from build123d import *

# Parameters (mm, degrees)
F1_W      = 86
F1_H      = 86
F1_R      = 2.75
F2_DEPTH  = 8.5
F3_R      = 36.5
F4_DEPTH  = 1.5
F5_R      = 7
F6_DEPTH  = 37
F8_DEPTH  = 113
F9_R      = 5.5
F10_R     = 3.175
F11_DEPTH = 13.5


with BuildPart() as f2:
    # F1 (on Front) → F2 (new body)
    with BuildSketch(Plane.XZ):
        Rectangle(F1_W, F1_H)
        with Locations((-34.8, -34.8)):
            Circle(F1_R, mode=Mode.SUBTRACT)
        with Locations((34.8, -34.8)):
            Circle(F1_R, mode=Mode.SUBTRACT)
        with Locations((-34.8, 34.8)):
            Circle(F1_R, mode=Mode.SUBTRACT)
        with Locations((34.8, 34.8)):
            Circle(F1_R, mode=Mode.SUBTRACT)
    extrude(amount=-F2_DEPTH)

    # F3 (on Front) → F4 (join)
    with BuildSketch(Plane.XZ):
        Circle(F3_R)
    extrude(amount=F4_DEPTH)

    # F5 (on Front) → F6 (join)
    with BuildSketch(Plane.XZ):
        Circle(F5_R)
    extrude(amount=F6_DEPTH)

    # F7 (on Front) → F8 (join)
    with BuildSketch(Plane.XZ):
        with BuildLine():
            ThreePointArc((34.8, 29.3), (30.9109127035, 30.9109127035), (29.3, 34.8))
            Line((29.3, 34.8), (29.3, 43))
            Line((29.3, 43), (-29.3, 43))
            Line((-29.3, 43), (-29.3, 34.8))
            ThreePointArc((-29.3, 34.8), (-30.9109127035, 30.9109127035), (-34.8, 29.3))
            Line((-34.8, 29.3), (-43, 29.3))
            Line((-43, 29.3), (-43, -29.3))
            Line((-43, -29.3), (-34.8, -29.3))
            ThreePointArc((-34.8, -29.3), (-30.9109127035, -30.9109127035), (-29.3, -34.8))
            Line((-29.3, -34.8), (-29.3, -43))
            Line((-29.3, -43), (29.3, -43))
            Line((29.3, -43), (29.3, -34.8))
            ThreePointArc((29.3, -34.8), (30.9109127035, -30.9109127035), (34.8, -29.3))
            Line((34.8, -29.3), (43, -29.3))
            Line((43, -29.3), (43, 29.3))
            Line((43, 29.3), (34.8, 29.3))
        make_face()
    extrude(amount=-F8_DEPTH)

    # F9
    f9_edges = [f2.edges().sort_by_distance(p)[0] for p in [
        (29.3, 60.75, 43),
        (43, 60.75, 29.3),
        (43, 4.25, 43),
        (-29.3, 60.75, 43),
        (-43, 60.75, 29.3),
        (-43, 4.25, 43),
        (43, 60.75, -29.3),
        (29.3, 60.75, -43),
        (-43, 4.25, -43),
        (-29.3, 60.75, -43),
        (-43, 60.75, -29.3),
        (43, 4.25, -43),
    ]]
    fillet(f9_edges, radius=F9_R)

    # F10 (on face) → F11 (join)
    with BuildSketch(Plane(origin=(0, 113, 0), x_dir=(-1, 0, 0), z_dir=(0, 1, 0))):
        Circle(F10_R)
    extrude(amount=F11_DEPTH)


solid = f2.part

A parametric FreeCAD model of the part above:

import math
import FreeCAD as App
import Part
import Sketcher

V = App.Vector


def edges_at(feature, points):
    """Names of the edges that pass closest to the given points."""
    edges = feature.Shape.Edges
    near = lambda p: min(range(len(edges)), key=lambda i: edges[i].distToShape(Part.Vertex(*p))[0])
    return sorted({f"Edge{near(p) + 1}" for p in points})


def add_polygon(sketch, points):
    """Adds a closed chain of lines whose ends are joined by coincident constraints."""
    first, n = sketch.GeometryCount, len(points)
    for a, b in zip(points, points[1:] + points[:1]):
        sketch.addGeometry(Part.LineSegment(App.Vector(*a, 0), App.Vector(*b, 0)), False)
    for i in range(n):
        sketch.addConstraint(Sketcher.Constraint("Coincident", first + i, 2, first + (i + 1) % n, 1))

doc = App.newDocument("Part")
body = doc.addObject("PartDesign::Body", "Body")

sketch1 = doc.addObject("Sketcher::SketchObject", "Sketch")
body.addObject(sketch1)
sketch1.AttachmentSupport = (doc.XZ_Plane, [""])
sketch1.MapMode = "FlatFace"
add_polygon(sketch1, [(-43, 43), (-43, -43), (43, -43), (43, 43)])
sketch1.addGeometry(Part.Circle(V(-34.8, -34.8, 0), V(0, 0, 1), 2.75), False)
sketch1.addGeometry(Part.Circle(V(34.8, -34.8, 0), V(0, 0, 1), 2.75), False)
sketch1.addGeometry(Part.Circle(V(-34.8, 34.8, 0), V(0, 0, 1), 2.75), False)
sketch1.addGeometry(Part.Circle(V(34.8, 34.8, 0), V(0, 0, 1), 2.75), False)
sketch1.addConstraint([
    Sketcher.Constraint("Vertical", 0),
    Sketcher.Constraint("Horizontal", 1),
    Sketcher.Constraint("Vertical", 2),
    Sketcher.Constraint("Horizontal", 3),
    Sketcher.Constraint("Equal", 4, 5),
    Sketcher.Constraint("Equal", 5, 6),
    Sketcher.Constraint("Equal", 6, 7),
    Sketcher.Constraint("Symmetric", 5, 3, 6, 3, -1, 1),
    Sketcher.Constraint("Symmetric", 4, 3, 7, 3, -1, 1),
    Sketcher.Constraint("Symmetric", 0, 2, 2, 2, -1, 1),
    Sketcher.Constraint("Symmetric", 4, 3, 5, 3, -2),
    Sketcher.Constraint("Equal", 3, 0),
    Sketcher.Constraint("Diameter", 4, 5.5),
    Sketcher.Constraint("DistanceX", 1, 1, 1, 2, 86.0),
    Sketcher.Constraint("DistanceX", 4, 3, -1, 1, 34.8),
    Sketcher.Constraint("DistanceY", 4, 3, -1, 1, 34.8),
])
pad1 = doc.addObject("PartDesign::Pad", "Pad")
body.addObject(pad1)
pad1.Profile = sketch1
pad1.Length = 8.5
pad1.Reversed = True

sketch2 = doc.addObject("Sketcher::SketchObject", "Sketch001")
body.addObject(sketch2)
sketch2.AttachmentSupport = (doc.XZ_Plane, [""])
sketch2.MapMode = "FlatFace"
sketch2.addGeometry(Part.Circle(V(0, 0, 0), V(0, 0, 1), 36.5), False)
sketch2.addConstraint([
    Sketcher.Constraint("Coincident", 0, 3, -1, 1),
    Sketcher.Constraint("Diameter", 0, 73.0),
])
pad2 = doc.addObject("PartDesign::Pad", "Pad001")
body.addObject(pad2)
pad2.Profile = sketch2
pad2.Length = 1.5

sketch3 = doc.addObject("Sketcher::SketchObject", "Sketch002")
body.addObject(sketch3)
sketch3.AttachmentSupport = (doc.XZ_Plane, [""])
sketch3.MapMode = "FlatFace"
sketch3.addGeometry(Part.Circle(V(0, 0, 0), V(0, 0, 1), 7), False)
sketch3.addConstraint([
    Sketcher.Constraint("Coincident", 0, 3, -1, 1),
    Sketcher.Constraint("Diameter", 0, 14.0),
])
pad3 = doc.addObject("PartDesign::Pad", "Pad002")
body.addObject(pad3)
pad3.Profile = sketch3
pad3.Length = 37

sketch4 = doc.addObject("Sketcher::SketchObject", "Sketch003")
body.addObject(sketch4)
sketch4.AttachmentSupport = (doc.XZ_Plane, [""])
sketch4.MapMode = "FlatFace"
sketch4.addGeometry([
    Part.ArcOfCircle(Part.Circle(V(34.8, 34.8, 0), V(0, 0, 1), 5.5), math.radians(180), math.radians(270)),
    Part.LineSegment(V(29.3, 34.8, 0), V(29.3, 43, 0)),
    Part.LineSegment(V(29.3, 43, 0), V(-29.3, 43, 0)),
    Part.LineSegment(V(-29.3, 43, 0), V(-29.3, 34.8, 0)),
    Part.ArcOfCircle(Part.Circle(V(-34.8, 34.8, 0), V(0, 0, 1), 5.5), math.radians(-90), math.radians(0)),
    Part.LineSegment(V(-34.8, 29.3, 0), V(-43, 29.3, 0)),
    Part.LineSegment(V(-43, 29.3, 0), V(-43, -29.3, 0)),
    Part.LineSegment(V(-43, -29.3, 0), V(-34.8, -29.3, 0)),
    Part.ArcOfCircle(Part.Circle(V(-34.8, -34.8, 0), V(0, 0, 1), 5.5), math.radians(0), math.radians(90)),
    Part.LineSegment(V(-29.3, -34.8, 0), V(-29.3, -43, 0)),
    Part.LineSegment(V(-29.3, -43, 0), V(29.3, -43, 0)),
    Part.LineSegment(V(29.3, -43, 0), V(29.3, -34.8, 0)),
    Part.ArcOfCircle(Part.Circle(V(34.8, -34.8, 0), V(0, 0, 1), 5.5), math.radians(90), math.radians(180)),
    Part.LineSegment(V(34.8, -29.3, 0), V(43, -29.3, 0)),
    Part.LineSegment(V(43, -29.3, 0), V(43, 29.3, 0)),
    Part.LineSegment(V(43, 29.3, 0), V(34.8, 29.3, 0)),
], False)
sketch4.addConstraint([
    Sketcher.Constraint("Tangent", 0, 1, 1, 1),
    Sketcher.Constraint("Coincident", 1, 2, 2, 1),
    Sketcher.Constraint("Coincident", 2, 2, 3, 1),
    Sketcher.Constraint("Tangent", 3, 2, 4, 2),
    Sketcher.Constraint("Tangent", 4, 1, 5, 1),
    Sketcher.Constraint("Coincident", 5, 2, 6, 1),
    Sketcher.Constraint("Coincident", 6, 2, 7, 1),
    Sketcher.Constraint("Tangent", 7, 2, 8, 2),
    Sketcher.Constraint("Tangent", 8, 1, 9, 1),
    Sketcher.Constraint("Coincident", 9, 2, 10, 1),
    Sketcher.Constraint("Coincident", 10, 2, 11, 1),
    Sketcher.Constraint("Tangent", 11, 2, 12, 2),
    Sketcher.Constraint("Tangent", 12, 1, 13, 1),
    Sketcher.Constraint("Coincident", 13, 2, 14, 1),
    Sketcher.Constraint("Coincident", 14, 2, 15, 1),
    Sketcher.Constraint("Tangent", 15, 2, 0, 2),
    Sketcher.Constraint("Vertical", 1),
    Sketcher.Constraint("Horizontal", 2),
    Sketcher.Constraint("Vertical", 3),
    Sketcher.Constraint("Horizontal", 5),
    Sketcher.Constraint("Vertical", 6),
    Sketcher.Constraint("Horizontal", 7),
    Sketcher.Constraint("Vertical", 9),
    Sketcher.Constraint("Horizontal", 10),
    Sketcher.Constraint("Vertical", 11),
    Sketcher.Constraint("Horizontal", 13),
    Sketcher.Constraint("Vertical", 14),
    Sketcher.Constraint("Horizontal", 15),
    Sketcher.Constraint("Equal", 0, 4),
    Sketcher.Constraint("Equal", 4, 8),
    Sketcher.Constraint("Equal", 8, 12),
    Sketcher.Constraint("Symmetric", 0, 3, 8, 3, -1, 1),
    Sketcher.Constraint("Symmetric", 4, 3, 12, 3, -1, 1),
    Sketcher.Constraint("Symmetric", 0, 3, 4, 3, -2),
    Sketcher.Constraint("Equal", 7, 13),
    Sketcher.Constraint("Equal", 15, 1),
    Sketcher.Constraint("Equal", 10, 6),
    Sketcher.Constraint("Equal", 3, 9),
    Sketcher.Constraint("Radius", 0, 5.5),
    Sketcher.Constraint("DistanceX", 2, 2, 2, 1, 58.6),
    Sketcher.Constraint("DistanceX", 5, 2, 5, 1, 8.2),
])
pad4 = doc.addObject("PartDesign::Pad", "Pad003")
body.addObject(pad4)
pad4.Profile = sketch4
pad4.Length = 113
pad4.Reversed = True
doc.recompute()

fillet = doc.addObject("PartDesign::Fillet", "Fillet")
body.addObject(fillet)
fillet.Base = (pad4, edges_at(pad4, [
    (29.3, 60.75, 43),
    (43, 60.75, 29.3),
    (43, 4.25, 43),
    (-29.3, 60.75, 43),
    (-43, 60.75, 29.3),
    (-43, 4.25, 43),
    (43, 60.75, -29.3),
    (29.3, 60.75, -43),
    (-43, 4.25, -43),
    (-29.3, 60.75, -43),
    (-43, 60.75, -29.3),
    (43, 4.25, -43),
]))
fillet.Radius = 5.5

sketch5 = doc.addObject("Sketcher::SketchObject", "Sketch004")
body.addObject(sketch5)
sketch5.AttachmentSupport = (doc.XZ_Plane, [""])
sketch5.MapMode = "FlatFace"
sketch5.AttachmentOffset = App.Placement(V(0, 0, -113), App.Rotation())
sketch5.addGeometry(Part.Circle(V(0, 0, 0), V(0, 0, 1), 3.175), False)
sketch5.addConstraint([
    Sketcher.Constraint("Coincident", 0, 3, -1, 1),
    Sketcher.Constraint("Diameter", 0, 6.35),
])
pad5 = doc.addObject("PartDesign::Pad", "Pad004")
body.addObject(pad5)
pad5.Profile = sketch5
pad5.Length = 13.5
pad5.Reversed = True

doc.recompute()
